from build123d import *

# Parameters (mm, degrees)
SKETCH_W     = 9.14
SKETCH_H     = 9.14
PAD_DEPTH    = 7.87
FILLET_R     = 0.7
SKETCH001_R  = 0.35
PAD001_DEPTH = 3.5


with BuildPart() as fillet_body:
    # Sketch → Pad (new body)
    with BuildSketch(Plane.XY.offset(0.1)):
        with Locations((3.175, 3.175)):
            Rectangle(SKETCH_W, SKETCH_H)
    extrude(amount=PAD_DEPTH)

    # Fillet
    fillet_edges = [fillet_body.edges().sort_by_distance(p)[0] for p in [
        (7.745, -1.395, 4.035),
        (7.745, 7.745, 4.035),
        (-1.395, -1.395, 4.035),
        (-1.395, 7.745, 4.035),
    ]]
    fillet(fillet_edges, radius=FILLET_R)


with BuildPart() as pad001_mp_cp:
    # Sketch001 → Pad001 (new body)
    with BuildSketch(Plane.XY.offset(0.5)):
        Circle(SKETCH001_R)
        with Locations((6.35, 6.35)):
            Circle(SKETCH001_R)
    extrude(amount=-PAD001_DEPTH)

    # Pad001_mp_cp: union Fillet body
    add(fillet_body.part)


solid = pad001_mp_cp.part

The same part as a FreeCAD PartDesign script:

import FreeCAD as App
import Part
import Sketcher

V = App.Vector
Q = App.Units.Quantity


def edges_at(feature, points):
    """Names of the edges that pass closest to the given points."""
    edges = feature.Shape.Edges
    near = lambda p: min(range(len(edges)), key=lambda i: edges[i].distToShape(Part.Vertex(*p))[0])
    return sorted({f"Edge{near(p) + 1}" for p in points})

doc = App.newDocument("Part")
body = doc.addObject("PartDesign::Body", "Body")

# Sketch on XY plane
sketch1 = doc.addObject("Sketcher::SketchObject", "Sketch")
body.addObject(sketch1)
sketch1.AttachmentSupport = (doc.XY_Plane, [""])
sketch1.MapMode = "FlatFace"
sketch1.AttachmentOffset = App.Placement(V(0, 0, 0.1), App.Rotation())
sketch1.addGeometry([
    Part.LineSegment(V(-1, 8, 0), V(-1, -1, 0)),
    Part.LineSegment(V(-1, -1, 0), V(8, -1, 0)),
    Part.LineSegment(V(8, -1, 0), V(8, 8, 0)),
    Part.LineSegment(V(8, 8, 0), V(-1, 8, 0)),
], False)
sketch1.addConstraint([
    Sketcher.Constraint("Coincident", 0, 2, 1, 1),
    Sketcher.Constraint("Coincident", 1, 2, 2, 1),
    Sketcher.Constraint("Coincident", 2, 2, 3, 1),
    Sketcher.Constraint("Coincident", 3, 2, 0, 1),
    Sketcher.Constraint("Vertical", 0),
    Sketcher.Constraint("Horizontal", 1),
    Sketcher.Constraint("Vertical", 2),
    Sketcher.Constraint("Horizontal", 3),
    Sketcher.Constraint("Equal", 3, 0),
    Sketcher.Constraint("DistanceX", 1, 1, 1, 2, Q("9.14 mm")),
    Sketcher.Constraint("DistanceX", 0, 2, -1, 1, Q("1.395 mm")),
    Sketcher.Constraint("DistanceY", 0, 2, -1, 1, Q("1.395 mm")),
])
pad1 = doc.addObject("PartDesign::Pad", "Pad")
body.addObject(pad1)
pad1.Profile = sketch1
pad1.Length = 7.87
doc.recompute()

fillet = doc.addObject("PartDesign::Fillet", "Fillet")
body.addObject(fillet)
fillet.Base = (pad1, edges_at(pad1, [
    (7.745, -1.395, 4.035),
    (7.745, 7.745, 4.035),
    (-1.395, -1.395, 4.035),
    (-1.395, 7.745, 4.035),
]))
fillet.Radius = 0.7
body2 = doc.addObject("PartDesign::Body", "Body001")
body2.AllowCompound = True

# Sketch on XY plane
sketch2 = doc.addObject("Sketcher::SketchObject", "Sketch001")
body2.addObject(sketch2)
sketch2.AttachmentSupport = (doc.getObject("XY_Plane001"), [""])
sketch2.MapMode = "FlatFace"
sketch2.AttachmentOffset = App.Placement(V(0, 0, 0.5), App.Rotation())
sketch2.addGeometry([
    Part.Circle(V(0, 0, 0), V(0, 0, 1), 0.35),
    Part.Circle(V(6.35, 6.35, 0), V(0, 0, 1), 0.35),
], False)
sketch2.addConstraint([
    Sketcher.Constraint("Coincident", 0, 3, -1, 1),
    Sketcher.Constraint("Equal", 0, 1),
    Sketcher.Constraint("Diameter", 0, Q("0.7 mm")),
    Sketcher.Constraint("DistanceX", -1, 1, 1, 3, Q("6.35 mm")),
    Sketcher.Constraint("DistanceY", -1, 1, 1, 3, Q("6.35 mm")),
])
pad2 = doc.addObject("PartDesign::Pad", "Pad001")
body2.addObject(pad2)
pad2.Profile = sketch2
pad2.Length = 3.5
pad2.Reversed = True
doc.recompute()

boolean = doc.addObject("PartDesign::Boolean", "Boolean")
body2.addObject(boolean)
boolean.Type = "Fuse"
boolean.addObjects([body])

doc.recompute()
